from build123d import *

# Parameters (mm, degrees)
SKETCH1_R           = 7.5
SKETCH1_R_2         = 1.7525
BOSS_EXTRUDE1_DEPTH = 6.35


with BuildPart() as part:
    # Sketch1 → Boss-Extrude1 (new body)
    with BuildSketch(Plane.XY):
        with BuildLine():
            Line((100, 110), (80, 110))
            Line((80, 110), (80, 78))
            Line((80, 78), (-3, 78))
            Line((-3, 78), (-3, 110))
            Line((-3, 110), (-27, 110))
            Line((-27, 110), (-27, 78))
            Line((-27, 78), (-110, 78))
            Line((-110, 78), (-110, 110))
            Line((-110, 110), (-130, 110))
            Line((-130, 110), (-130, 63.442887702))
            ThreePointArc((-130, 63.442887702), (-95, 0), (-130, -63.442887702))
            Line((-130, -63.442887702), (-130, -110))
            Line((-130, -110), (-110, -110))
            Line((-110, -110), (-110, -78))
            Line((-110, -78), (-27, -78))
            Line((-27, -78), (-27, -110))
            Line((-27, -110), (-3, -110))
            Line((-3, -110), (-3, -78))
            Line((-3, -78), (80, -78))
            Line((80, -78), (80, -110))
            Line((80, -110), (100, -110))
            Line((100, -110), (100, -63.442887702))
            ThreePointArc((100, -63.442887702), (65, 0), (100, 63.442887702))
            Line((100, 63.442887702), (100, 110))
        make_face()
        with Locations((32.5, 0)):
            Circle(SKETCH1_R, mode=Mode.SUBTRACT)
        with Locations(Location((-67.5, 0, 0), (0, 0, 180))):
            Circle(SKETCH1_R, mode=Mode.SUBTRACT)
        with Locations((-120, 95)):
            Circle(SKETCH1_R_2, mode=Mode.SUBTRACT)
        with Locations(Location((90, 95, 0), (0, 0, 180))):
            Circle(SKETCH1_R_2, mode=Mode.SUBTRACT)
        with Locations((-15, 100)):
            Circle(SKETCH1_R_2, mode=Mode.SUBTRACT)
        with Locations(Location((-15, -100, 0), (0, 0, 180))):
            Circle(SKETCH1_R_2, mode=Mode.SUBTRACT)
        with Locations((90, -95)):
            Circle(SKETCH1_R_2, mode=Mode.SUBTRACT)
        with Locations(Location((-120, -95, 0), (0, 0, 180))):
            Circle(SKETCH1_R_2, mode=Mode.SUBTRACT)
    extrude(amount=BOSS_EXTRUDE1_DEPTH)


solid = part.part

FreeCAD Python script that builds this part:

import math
import FreeCAD as App
import Part
import Sketcher

V = App.Vector

doc = App.newDocument("Part")
body = doc.addObject("PartDesign::Body", "Body")

sketch1 = body.newObject("Sketcher::SketchObject", "Sketch")
sketch1.AttachmentSupport = (doc.getObject("XY_Plane"), [""])
sketch1.MapMode = "FlatFace"
sketch1.addGeometry([
    Part.LineSegment(V(100, 110, 0), V(80, 110, 0)),
    Part.LineSegment(V(80, 110, 0), V(80, 78, 0)),
    Part.LineSegment(V(80, 78, 0), V(-3, 78, 0)),
    Part.LineSegment(V(-3, 78, 0), V(-3, 110, 0)),
    Part.LineSegment(V(-3, 110, 0), V(-27, 110, 0)),
    Part.LineSegment(V(-27, 110, 0), V(-27, 78, 0)),
    Part.LineSegment(V(-27, 78, 0), V(-110, 78, 0)),
    Part.LineSegment(V(-110, 78, 0), V(-110, 110, 0)),
    Part.LineSegment(V(-110, 110, 0), V(-130, 110, 0)),
    Part.LineSegment(V(-130, 110, 0), V(-130, 63.4, 0)),
    Part.ArcOfCircle(Part.Circle(V(-170, 0, 0), V(0, 0, 1), 75), math.radians(-58), math.radians(58)),
    Part.LineSegment(V(-130, -63.4, 0), V(-130, -110, 0)),
    Part.LineSegment(V(-130, -110, 0), V(-110, -110, 0)),
    Part.LineSegment(V(-110, -110, 0), V(-110, -78, 0)),
    Part.LineSegment(V(-110, -78, 0), V(-27, -78, 0)),
    Part.LineSegment(V(-27, -78, 0), V(-27, -110, 0)),
    Part.LineSegment(V(-27, -110, 0), V(-3, -110, 0)),
    Part.LineSegment(V(-3, -110, 0), V(-3, -78, 0)),
    Part.LineSegment(V(-3, -78, 0), V(80, -78, 0)),
    Part.LineSegment(V(80, -78, 0), V(80, -110, 0)),
    Part.LineSegment(V(80, -110, 0), V(100, -110, 0)),
    Part.LineSegment(V(100, -110, 0), V(100, -63.4, 0)),
    Part.ArcOfCircle(Part.Circle(V(140, 0, 0), V(0, 0, 1), 75), math.radians(122), math.radians(238)),
    Part.LineSegment(V(100, 63.4, 0), V(100, 110, 0)),
    Part.Circle(V(-120, -95, 0), V(0, 0, 1), 1.8),
    Part.Circle(V(-15, -100, 0), V(0, 0, 1), 1.8),
    Part.Circle(V(90, -95, 0), V(0, 0, 1), 1.8),
    Part.Circle(V(-67.5, 0, 0), V(0, 0, 1), 7.5),
    Part.Circle(V(-120, 95, 0), V(0, 0, 1), 1.8),
    Part.Circle(V(-15, 100, 0), V(0, 0, 1), 1.8),
    Part.Circle(V(32.5, 0, 0), V(0, 0, 1), 7.5),
    Part.Circle(V(90, 95, 0), V(0, 0, 1), 1.8),
], False)
sketch1.addConstraint([
    Sketcher.Constraint("Coincident", 0, 2, 1, 1),
    Sketcher.Constraint("Coincident", 1, 2, 2, 1),
    Sketcher.Constraint("Coincident", 2, 2, 3, 1),
    Sketcher.Constraint("Coincident", 3, 2, 4, 1),
    Sketcher.Constraint("Coincident", 4, 2, 5, 1),
    Sketcher.Constraint("Coincident", 5, 2, 6, 1),
    Sketcher.Constraint("Coincident", 6, 2, 7, 1),
    Sketcher.Constraint("Coincident", 7, 2, 8, 1),
    Sketcher.Constraint("Coincident", 8, 2, 9, 1),
    Sketcher.Constraint("Coincident", 9, 2, 10, 2),
    Sketcher.Constraint("Coincident", 10, 1, 11, 1),
    Sketcher.Constraint("Coincident", 11, 2, 12, 1),
    Sketcher.Constraint("Coincident", 12, 2, 13, 1),
    Sketcher.Constraint("Coincident", 13, 2, 14, 1),
    Sketcher.Constraint("Coincident", 14, 2, 15, 1),
    Sketcher.Constraint("Coincident", 15, 2, 16, 1),
    Sketcher.Constraint("Coincident", 16, 2, 17, 1),
    Sketcher.Constraint("Coincident", 17, 2, 18, 1),
    Sketcher.Constraint("Coincident", 18, 2, 19, 1),
    Sketcher.Constraint("Coincident", 19, 2, 20, 1),
    Sketcher.Constraint("Coincident", 20, 2, 21, 1),
    Sketcher.Constraint("Coincident", 21, 2, 22, 2),
    Sketcher.Constraint("Coincident", 22, 1, 23, 1),
    Sketcher.Constraint("Coincident", 23, 2, 0, 1),
    Sketcher.Constraint("Horizontal", 0),
    Sketcher.Constraint("Vertical", 1),
    Sketcher.Constraint("Horizontal", 2),
    Sketcher.Constraint("Vertical", 3),
    Sketcher.Constraint("Horizontal", 4),
    Sketcher.Constraint("Vertical", 5),
    Sketcher.Constraint("Horizontal", 6),
    Sketcher.Constraint("Vertical", 7),
    Sketcher.Constraint("Horizontal", 8),
    Sketcher.Constraint("Vertical", 9),
    Sketcher.Constraint("Vertical", 11),
    Sketcher.Constraint("Horizontal", 12),
    Sketcher.Constraint("Vertical", 13),
    Sketcher.Constraint("Horizontal", 14),
    Sketcher.Constraint("Vertical", 15),
    Sketcher.Constraint("Horizontal", 16),
    Sketcher.Constraint("Vertical", 17),
    Sketcher.Constraint("Horizontal", 18),
    Sketcher.Constraint("Vertical", 19),
    Sketcher.Constraint("Horizontal", 20),
    Sketcher.Constraint("Vertical", 21),
    Sketcher.Constraint("Vertical", 23),
    Sketcher.Constraint("Equal", 10, 22),
    Sketcher.Constraint("Equal", 24, 25),
    Sketcher.Constraint("Equal", 25, 26),
    Sketcher.Constraint("Equal", 26, 28),
    Sketcher.Constraint("Equal", 28, 29),
    Sketcher.Constraint("Equal", 27, 30),
    Sketcher.Constraint("Equal", 29, 31),
    Sketcher.Constraint("Symmetric", 24, 3, 28, 3, -1),
    Sketcher.Constraint("Symmetric", 25, 3, 29, 3, -1),
    Sketcher.Constraint("Symmetric", 26, 3, 31, 3, -1),
    Sketcher.Constraint("Symmetric", 9, 2, 10, 1, -1),
    Sketcher.Constraint("Symmetric", 7, 2, 12, 2, -1),
    Sketcher.Constraint("Symmetric", 5, 2, 14, 2, -1),
    Sketcher.Constraint("Symmetric", 3, 2, 16, 2, -1),
    Sketcher.Constraint("Symmetric", 1, 2, 18, 2, -1),
    Sketcher.Constraint("Symmetric", 21, 2, 22, 1, -1),
    Sketcher.Constraint("PointOnObject", 27, 3, -1),
    Sketcher.Constraint("PointOnObject", 30, 3, -1),
    Sketcher.Constraint("Horizontal", 24, 3, 26, 3),
    Sketcher.Constraint("Horizontal", 0, 2, 3, 2),
    Sketcher.Constraint("Horizontal", 2, 2, 5, 2),
    Sketcher.Constraint("Horizontal", 4, 2, 7, 2),
    Sketcher.Constraint("Horizontal", 16, 2, 19, 2),
    Sketcher.Constraint("Horizontal", 10, 1, 21, 2),
    Sketcher.Constraint("Equal", 2, 6),
    Sketcher.Constraint("Equal", 0, 8),
    Sketcher.Constraint("Diameter", 27, 15.0),
    Sketcher.Constraint("Radius", 10, 75.0),
    Sketcher.Constraint("DistanceX", 0, 2, 0, 1, 20.0),
    Sketcher.Constraint("DistanceX", 2, 2, 2, 1, 83.0),
    Sketcher.Constraint("DistanceX", 4, 2, 4, 1, 24.0),
    Sketcher.Constraint("DistanceY", 1, 2, 1, 1, 32.0),
    Sketcher.Constraint("Diameter", 24, 3.505),
    Sketcher.Constraint("DistanceX", 10, 3, -1, 1, 170.0),
    Sketcher.Constraint("DistanceX", -1, 1, 22, 3, 140.0),
    Sketcher.Constraint("DistanceX", 24, 3, -1, 1, 120.0),
    Sketcher.Constraint("DistanceY", 24, 3, -1, 1, 95.0),
    Sketcher.Constraint("DistanceX", 25, 3, -1, 1, 15.0),
    Sketcher.Constraint("DistanceY", 25, 3, -1, 1, 100.0),
    Sketcher.Constraint("DistanceX", -1, 1, 26, 3, 90.0),
    Sketcher.Constraint("DistanceY", -1, 1, 0, 2, 110.0),
    Sketcher.Constraint("DistanceX", 27, 3, 30, 3, 100.0),
    Sketcher.Constraint("DistanceX", 27, 3, -1, 1, 67.5),
])
pad1 = body.newObject("PartDesign::Pad", "Pad")
pad1.Profile = sketch1
pad1.Length = 6.35

doc.recompute()
